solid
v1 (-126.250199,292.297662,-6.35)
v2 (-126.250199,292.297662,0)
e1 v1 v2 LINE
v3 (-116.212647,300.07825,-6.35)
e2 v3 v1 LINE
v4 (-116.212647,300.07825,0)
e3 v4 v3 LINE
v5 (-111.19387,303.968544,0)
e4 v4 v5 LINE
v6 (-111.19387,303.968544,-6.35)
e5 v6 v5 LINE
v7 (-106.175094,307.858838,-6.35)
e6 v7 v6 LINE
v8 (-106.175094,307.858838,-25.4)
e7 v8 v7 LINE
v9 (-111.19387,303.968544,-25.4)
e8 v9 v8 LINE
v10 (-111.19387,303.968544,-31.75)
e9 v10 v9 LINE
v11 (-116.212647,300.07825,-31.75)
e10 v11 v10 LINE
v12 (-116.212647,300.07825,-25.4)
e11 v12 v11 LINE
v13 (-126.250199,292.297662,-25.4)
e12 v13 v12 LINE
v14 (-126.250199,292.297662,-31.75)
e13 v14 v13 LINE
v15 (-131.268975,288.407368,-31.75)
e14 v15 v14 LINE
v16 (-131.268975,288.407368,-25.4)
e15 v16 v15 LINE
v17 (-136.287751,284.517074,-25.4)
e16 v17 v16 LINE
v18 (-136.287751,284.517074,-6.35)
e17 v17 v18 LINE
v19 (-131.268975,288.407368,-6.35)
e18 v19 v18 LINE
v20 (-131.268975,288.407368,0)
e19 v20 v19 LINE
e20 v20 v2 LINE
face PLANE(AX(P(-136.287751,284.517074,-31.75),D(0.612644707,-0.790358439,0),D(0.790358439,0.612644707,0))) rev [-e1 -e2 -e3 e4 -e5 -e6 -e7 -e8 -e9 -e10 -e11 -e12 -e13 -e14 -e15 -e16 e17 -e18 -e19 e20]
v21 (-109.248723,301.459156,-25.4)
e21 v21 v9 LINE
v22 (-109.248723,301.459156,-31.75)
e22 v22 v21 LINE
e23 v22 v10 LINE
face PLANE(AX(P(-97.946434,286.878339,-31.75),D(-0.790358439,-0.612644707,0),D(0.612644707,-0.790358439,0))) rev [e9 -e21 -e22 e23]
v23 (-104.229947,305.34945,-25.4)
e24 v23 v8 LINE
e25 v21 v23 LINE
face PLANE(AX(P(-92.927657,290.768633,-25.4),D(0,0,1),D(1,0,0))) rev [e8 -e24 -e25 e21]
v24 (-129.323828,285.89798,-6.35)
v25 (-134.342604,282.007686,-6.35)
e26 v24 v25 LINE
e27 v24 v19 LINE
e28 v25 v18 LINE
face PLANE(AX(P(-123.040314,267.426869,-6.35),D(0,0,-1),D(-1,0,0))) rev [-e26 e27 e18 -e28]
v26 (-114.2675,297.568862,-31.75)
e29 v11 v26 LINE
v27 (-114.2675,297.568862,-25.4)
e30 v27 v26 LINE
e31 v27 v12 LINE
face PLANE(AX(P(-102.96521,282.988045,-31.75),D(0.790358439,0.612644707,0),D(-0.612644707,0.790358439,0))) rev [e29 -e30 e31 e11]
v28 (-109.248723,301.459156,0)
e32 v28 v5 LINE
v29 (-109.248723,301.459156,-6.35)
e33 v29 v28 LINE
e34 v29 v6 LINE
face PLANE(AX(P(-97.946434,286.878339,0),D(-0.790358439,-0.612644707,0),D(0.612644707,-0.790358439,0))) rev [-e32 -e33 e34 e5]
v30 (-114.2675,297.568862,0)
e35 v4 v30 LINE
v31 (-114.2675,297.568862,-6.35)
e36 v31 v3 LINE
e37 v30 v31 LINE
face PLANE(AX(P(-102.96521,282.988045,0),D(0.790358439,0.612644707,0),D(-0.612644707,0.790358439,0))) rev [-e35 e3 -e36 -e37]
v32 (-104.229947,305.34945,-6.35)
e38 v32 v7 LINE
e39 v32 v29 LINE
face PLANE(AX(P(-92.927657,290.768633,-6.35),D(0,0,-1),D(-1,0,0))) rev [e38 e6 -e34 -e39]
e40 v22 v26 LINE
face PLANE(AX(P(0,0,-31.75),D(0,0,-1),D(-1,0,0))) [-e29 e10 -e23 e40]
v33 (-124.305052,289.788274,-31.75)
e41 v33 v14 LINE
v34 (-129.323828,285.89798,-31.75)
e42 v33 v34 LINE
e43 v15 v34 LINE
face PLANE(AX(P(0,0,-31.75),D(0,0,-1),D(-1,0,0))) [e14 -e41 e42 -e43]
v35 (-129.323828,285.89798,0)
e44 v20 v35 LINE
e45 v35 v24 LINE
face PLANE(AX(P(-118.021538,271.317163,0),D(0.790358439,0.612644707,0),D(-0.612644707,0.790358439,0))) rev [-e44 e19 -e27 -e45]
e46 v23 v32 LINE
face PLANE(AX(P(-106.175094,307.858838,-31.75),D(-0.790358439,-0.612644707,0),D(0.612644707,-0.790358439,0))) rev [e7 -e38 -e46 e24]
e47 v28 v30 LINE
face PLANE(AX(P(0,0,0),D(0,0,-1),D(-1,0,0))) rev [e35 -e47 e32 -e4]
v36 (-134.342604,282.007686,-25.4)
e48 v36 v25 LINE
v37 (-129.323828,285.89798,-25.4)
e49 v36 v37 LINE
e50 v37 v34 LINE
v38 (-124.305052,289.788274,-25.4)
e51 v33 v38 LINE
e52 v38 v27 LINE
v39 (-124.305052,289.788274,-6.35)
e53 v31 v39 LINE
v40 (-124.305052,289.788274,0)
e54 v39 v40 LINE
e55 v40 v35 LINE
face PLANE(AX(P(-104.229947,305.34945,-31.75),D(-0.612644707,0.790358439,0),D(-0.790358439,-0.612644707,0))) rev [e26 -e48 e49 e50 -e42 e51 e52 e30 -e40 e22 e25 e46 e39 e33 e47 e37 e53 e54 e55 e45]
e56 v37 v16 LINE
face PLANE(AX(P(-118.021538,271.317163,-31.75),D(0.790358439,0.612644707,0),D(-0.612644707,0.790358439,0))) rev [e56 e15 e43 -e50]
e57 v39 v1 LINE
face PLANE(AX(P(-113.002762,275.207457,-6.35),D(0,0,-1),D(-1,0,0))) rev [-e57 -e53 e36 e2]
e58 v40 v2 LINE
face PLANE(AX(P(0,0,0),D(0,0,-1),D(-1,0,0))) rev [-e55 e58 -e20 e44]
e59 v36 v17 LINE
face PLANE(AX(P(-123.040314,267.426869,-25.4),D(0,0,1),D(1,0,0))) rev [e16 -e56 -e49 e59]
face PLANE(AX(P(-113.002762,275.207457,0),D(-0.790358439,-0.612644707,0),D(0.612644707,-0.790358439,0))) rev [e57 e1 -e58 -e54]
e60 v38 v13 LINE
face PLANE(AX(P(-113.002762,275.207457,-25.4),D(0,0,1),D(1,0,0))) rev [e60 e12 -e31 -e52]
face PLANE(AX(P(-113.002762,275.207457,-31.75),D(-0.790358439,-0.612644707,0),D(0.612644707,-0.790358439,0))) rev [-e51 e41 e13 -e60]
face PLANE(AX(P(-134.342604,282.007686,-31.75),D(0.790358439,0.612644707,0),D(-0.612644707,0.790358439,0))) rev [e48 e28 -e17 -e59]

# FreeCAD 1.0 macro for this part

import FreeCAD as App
import Part
import Sketcher
Q = App.Units.Quantity

doc = App.newDocument("Part")
body = doc.addObject("PartDesign::Body", "Body")

sketch1 = body.newObject("Sketcher::SketchObject", "Sketch")
sketch1.AttachmentSupport = (doc.getObject("XY_Plane"), [""])
sketch1.MapMode = "FlatFace"
sketch1.addGeometry([
    Part.LineSegment(App.Vector(-136.3, 284.5, 0), App.Vector(-134.3, 282, 0)),
    Part.LineSegment(App.Vector(-134.3, 282, 0), App.Vector(-104.2, 305.3, 0)),
    Part.LineSegment(App.Vector(-104.2, 305.3, 0), App.Vector(-106.2, 307.9, 0)),
    Part.LineSegment(App.Vector(-106.2, 307.9, 0), App.Vector(-136.3, 284.5, 0)),
], False)
sketch1.addConstraint([
    Sketcher.Constraint("Coincident", 0, 2, 1, 1),
    Sketcher.Constraint("Coincident", 1, 2, 2, 1),
    Sketcher.Constraint("Coincident", 2, 2, 3, 1),
    Sketcher.Constraint("Coincident", 3, 2, 0, 1),
    Sketcher.Constraint("Perpendicular", 0, 1),
    Sketcher.Constraint("Perpendicular", 1, 2),
    Sketcher.Constraint("Perpendicular", 2, 3),
    Sketcher.Constraint("Distance", 1, Q("1.5 in")),
    Sketcher.Constraint("Distance", 0, Q("0.125 in")),
    Sketcher.Constraint("DistanceY", -1, 1, 1, 2, Q("305.34945 mm")),
    Sketcher.Constraint("DistanceX", 3, 2, -1, 1, Q("136.287751 mm")),
    Sketcher.Constraint("DistanceY", 1, 2, 2, 2, Q("2.509388 mm")),
])
pad1 = body.newObject("PartDesign::Pad", "Pad")
pad1.Profile = sketch1
pad1.Length = Q("1.25 in")
pad1.Reversed = True

sketch2 = body.newObject("Sketcher::SketchObject", "Sketch001")
sketch2.Placement = App.Placement(App.Vector(-188.919067, 243.720018, 0), App.Rotation(App.Vector(0.790358439, 0.612644707, 0), App.Vector(0, 0, -0.999999999), App.Vector(-0.612644707, 0.790358439, 0), "ZXY"))
sketch2.addGeometry([
    Part.LineSegment(App.Vector(67, 32, 0), App.Vector(67, 25, 0)),
    Part.LineSegment(App.Vector(67, 25, 0), App.Vector(73, 25, 0)),
    Part.LineSegment(App.Vector(73, 25, 0), App.Vector(73, 32, 0)),
    Part.LineSegment(App.Vector(73, 32, 0), App.Vector(67, 32, 0)),
    Part.LineSegment(App.Vector(98, 32, 0), App.Vector(98, 25, 0)),
    Part.LineSegment(App.Vector(98, 25, 0), App.Vector(105, 25, 0)),
    Part.LineSegment(App.Vector(105, 25, 0), App.Vector(105, 32, 0)),
    Part.LineSegment(App.Vector(105, 32, 0), App.Vector(98, 32, 0)),
    Part.LineSegment(App.Vector(79, 32, 0), App.Vector(79, 25, 0)),
    Part.LineSegment(App.Vector(79, 25, 0), App.Vector(92, 25, 0)),
    Part.LineSegment(App.Vector(92, 25, 0), App.Vector(92, 32, 0)),
    Part.LineSegment(App.Vector(92, 32, 0), App.Vector(79, 32, 0)),
    Part.LineSegment(App.Vector(67, 6, 0), App.Vector(67, 0, 0)),
    Part.LineSegment(App.Vector(67, 0, 0), App.Vector(73, 0, 0)),
    Part.LineSegment(App.Vector(73, 0, 0), App.Vector(73, 6, 0)),
    Part.LineSegment(App.Vector(73, 6, 0), App.Vector(67, 6, 0)),
    Part.LineSegment(App.Vector(79, 6, 0), App.Vector(79, 0, 0)),
    Part.LineSegment(App.Vector(79, 0, 0), App.Vector(92, 0, 0)),
    Part.LineSegment(App.Vector(92, 0, 0), App.Vector(92, 6, 0)),
    Part.LineSegment(App.Vector(92, 6, 0), App.Vector(79, 6, 0)),
    Part.LineSegment(App.Vector(98, 6, 0), App.Vector(98, 0, 0)),
    Part.LineSegment(App.Vector(98, 0, 0), App.Vector(105, 0, 0)),
    Part.LineSegment(App.Vector(105, 0, 0), App.Vector(105, 6, 0)),
    Part.LineSegment(App.Vector(105, 6, 0), App.Vector(98, 6, 0)),
], False)
sketch2.addConstraint([
    Sketcher.Constraint("Coincident", 0, 2, 1, 1),
    Sketcher.Constraint("Coincident", 1, 2, 2, 1),
    Sketcher.Constraint("Coincident", 2, 2, 3, 1),
    Sketcher.Constraint("Coincident", 3, 2, 0, 1),
    Sketcher.Constraint("Coincident", 4, 2, 5, 1),
    Sketcher.Constraint("Coincident", 5, 2, 6, 1),
    Sketcher.Constraint("Coincident", 6, 2, 7, 1),
    Sketcher.Constraint("Coincident", 7, 2, 4, 1),
    Sketcher.Constraint("Coincident", 8, 2, 9, 1),
    Sketcher.Constraint("Coincident", 9, 2, 10, 1),
    Sketcher.Constraint("Coincident", 10, 2, 11, 1),
    Sketcher.Constraint("Coincident", 11, 2, 8, 1),
    Sketcher.Constraint("Coincident", 12, 2, 13, 1),
    Sketcher.Constraint("Coincident", 13, 2, 14, 1),
    Sketcher.Constraint("Coincident", 14, 2, 15, 1),
    Sketcher.Constraint("Coincident", 15, 2, 12, 1),
    Sketcher.Constraint("Coincident", 16, 2, 17, 1),
    Sketcher.Constraint("Coincident", 17, 2, 18, 1),
    Sketcher.Constraint("Coincident", 18, 2, 19, 1),
    Sketcher.Constraint("Coincident", 19, 2, 16, 1),
    Sketcher.Constraint("Coincident", 20, 2, 21, 1),
    Sketcher.Constraint("Coincident", 21, 2, 22, 1),
    Sketcher.Constraint("Coincident", 22, 2, 23, 1),
    Sketcher.Constraint("Coincident", 23, 2, 20, 1),
    Sketcher.Constraint("Vertical", 0),
    Sketcher.Constraint("Horizontal", 1),
    Sketcher.Constraint("Vertical", 2),
    Sketcher.Constraint("Horizontal", 3),
    Sketcher.Constraint("Vertical", 4),
    Sketcher.Constraint("Horizontal", 5),
    Sketcher.Constraint("Vertical", 6),
    Sketcher.Constraint("Horizontal", 7),
    Sketcher.Constraint("Vertical", 8),
    Sketcher.Constraint("Horizontal", 9),
    Sketcher.Constraint("Vertical", 10),
    Sketcher.Constraint("Horizontal", 11),
    Sketcher.Constraint("Vertical", 12),
    Sketcher.Constraint("Horizontal", 13),
    Sketcher.Constraint("Vertical", 14),
    Sketcher.Constraint("Horizontal", 15),
    Sketcher.Constraint("Vertical", 16),
    Sketcher.Constraint("Horizontal", 17),
    Sketcher.Constraint("Vertical", 18),
    Sketcher.Constraint("Horizontal", 19),
    Sketcher.Constraint("Vertical", 20),
    Sketcher.Constraint("Horizontal", 21),
    Sketcher.Constraint("Vertical", 22),
    Sketcher.Constraint("Horizontal", 23),
    Sketcher.Constraint("PointOnObject", 12, 2, -1),
    Sketcher.Constraint("PointOnObject", 16, 2, -1),
    Sketcher.Constraint("PointOnObject", 20, 2, -1),
    Sketcher.Constraint("Horizontal", 1, 2, 4, 2),
    Sketcher.Constraint("Horizontal", 3, 2, 6, 2),
    Sketcher.Constraint("Horizontal", 5, 2, 8, 2),
    Sketcher.Constraint("Horizontal", 7, 2, 10, 2),
    Sketcher.Constraint("Horizontal", 15, 2, 18, 2),
    Sketcher.Constraint("Horizontal", 19, 2, 22, 2),
    Sketcher.Constraint("Vertical", 3, 2, 12, 2),
    Sketcher.Constraint("Vertical", 2, 2, 13, 2),
    Sketcher.Constraint("Vertical", 11, 2, 16, 2),
    Sketcher.Constraint("Vertical", 10, 2, 17, 2),
    Sketcher.Constraint("Vertical", 7, 2, 20, 2),
    Sketcher.Constraint("Vertical", 6, 2, 21, 2),
    Sketcher.Constraint("Equal", 3, 5),
    Sketcher.Constraint("Equal", 23, 0),
    Sketcher.Constraint("Equal", 10, 12),
    Sketcher.Constraint("DistanceX", 9, 1, 9, 2, Q("0.5 in")),
    Sketcher.Constraint("DistanceY", -1, 1, 0, 2, Q("1 in")),
    Sketcher.Constraint("DistanceX", 1, 2, 4, 2, Q("1 in")),
    Sketcher.Constraint("DistanceX", 12, 2, 17, 2, Q("1 in")),
    Sketcher.Constraint("DistanceX", 16, 2, 21, 2, Q("1 in")),
    Sketcher.Constraint("DistanceX", -1, 1, 0, 2, Q("66.591706 mm")),
])
pocket1 = body.newObject("PartDesign::Pocket", "Pocket")
pocket1.Profile = sketch2
pocket1.Type = "ThroughAll"

doc.recompute()
